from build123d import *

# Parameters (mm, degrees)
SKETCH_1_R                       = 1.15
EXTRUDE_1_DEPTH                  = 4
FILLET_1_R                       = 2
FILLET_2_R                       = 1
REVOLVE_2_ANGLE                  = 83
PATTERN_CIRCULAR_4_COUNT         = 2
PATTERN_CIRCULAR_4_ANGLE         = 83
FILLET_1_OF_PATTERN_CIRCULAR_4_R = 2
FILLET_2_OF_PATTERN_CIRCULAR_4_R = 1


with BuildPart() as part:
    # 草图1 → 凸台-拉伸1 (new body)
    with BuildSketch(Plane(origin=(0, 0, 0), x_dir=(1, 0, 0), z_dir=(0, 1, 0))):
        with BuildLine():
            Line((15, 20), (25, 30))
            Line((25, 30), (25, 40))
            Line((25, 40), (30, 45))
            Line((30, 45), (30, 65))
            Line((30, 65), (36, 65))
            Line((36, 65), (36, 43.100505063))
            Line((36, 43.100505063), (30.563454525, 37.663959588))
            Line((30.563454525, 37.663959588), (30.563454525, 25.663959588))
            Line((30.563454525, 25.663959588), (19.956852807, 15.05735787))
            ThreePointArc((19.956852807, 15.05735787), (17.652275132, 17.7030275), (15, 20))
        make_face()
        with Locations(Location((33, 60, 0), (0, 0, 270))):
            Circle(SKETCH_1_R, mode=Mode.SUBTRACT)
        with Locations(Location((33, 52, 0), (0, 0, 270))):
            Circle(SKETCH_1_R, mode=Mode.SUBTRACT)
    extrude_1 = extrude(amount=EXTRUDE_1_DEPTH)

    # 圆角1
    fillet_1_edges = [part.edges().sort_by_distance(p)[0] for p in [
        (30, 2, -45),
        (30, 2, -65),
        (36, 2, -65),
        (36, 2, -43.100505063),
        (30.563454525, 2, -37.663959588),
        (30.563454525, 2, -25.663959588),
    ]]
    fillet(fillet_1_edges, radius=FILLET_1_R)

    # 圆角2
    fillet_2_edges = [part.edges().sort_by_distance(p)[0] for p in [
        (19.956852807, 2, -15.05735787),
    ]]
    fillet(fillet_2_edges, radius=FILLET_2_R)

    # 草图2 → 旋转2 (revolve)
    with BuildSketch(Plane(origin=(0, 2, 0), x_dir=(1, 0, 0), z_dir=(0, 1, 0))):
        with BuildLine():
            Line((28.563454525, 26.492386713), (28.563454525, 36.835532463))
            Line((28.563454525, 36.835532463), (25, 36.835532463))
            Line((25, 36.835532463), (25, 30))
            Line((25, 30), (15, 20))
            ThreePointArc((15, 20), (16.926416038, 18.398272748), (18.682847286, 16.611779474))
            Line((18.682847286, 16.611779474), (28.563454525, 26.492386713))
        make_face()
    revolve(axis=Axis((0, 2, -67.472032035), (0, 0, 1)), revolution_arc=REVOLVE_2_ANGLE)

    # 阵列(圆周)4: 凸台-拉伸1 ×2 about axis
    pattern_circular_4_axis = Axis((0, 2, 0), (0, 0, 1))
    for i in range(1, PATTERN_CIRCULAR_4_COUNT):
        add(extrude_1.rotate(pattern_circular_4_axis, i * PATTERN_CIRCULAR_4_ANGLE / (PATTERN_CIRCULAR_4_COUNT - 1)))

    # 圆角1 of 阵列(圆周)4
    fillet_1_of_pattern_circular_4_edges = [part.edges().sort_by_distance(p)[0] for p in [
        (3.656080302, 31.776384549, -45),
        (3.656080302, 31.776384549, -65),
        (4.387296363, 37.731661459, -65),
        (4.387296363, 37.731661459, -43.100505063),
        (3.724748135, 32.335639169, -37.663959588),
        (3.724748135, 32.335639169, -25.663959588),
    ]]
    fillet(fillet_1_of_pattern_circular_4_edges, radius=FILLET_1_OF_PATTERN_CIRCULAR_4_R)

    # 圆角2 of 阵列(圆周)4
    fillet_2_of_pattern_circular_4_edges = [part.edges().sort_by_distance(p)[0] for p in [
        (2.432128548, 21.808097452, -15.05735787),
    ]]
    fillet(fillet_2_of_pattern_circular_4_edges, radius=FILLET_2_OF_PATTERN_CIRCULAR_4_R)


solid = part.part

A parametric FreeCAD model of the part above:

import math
import FreeCAD as App
import Part
import Sketcher

V = App.Vector
Q = App.Units.Quantity


def edges_at(feature, points):
    """Names of the edges that pass closest to the given points."""
    edges = feature.Shape.Edges
    near = lambda p: min(range(len(edges)), key=lambda i: edges[i].distToShape(Part.Vertex(*p))[0])
    return sorted({f"Edge{near(p) + 1}" for p in points})

doc = App.newDocument("Part")
body = doc.addObject("PartDesign::Body", "Body")

# Sketch on XZ plane
sketch1 = body.newObject("Sketcher::SketchObject", "Sketch")
sketch1.AttachmentSupport = (doc.getObject("XZ_Plane"), [""])
sketch1.MapMode = "FlatFace"
sketch1.addGeometry([
    Part.LineSegment(V(25, -30, 0), V(15, -20, 0)),  # 0
    Part.ArcOfCircle(Part.Circle(V(0, 0, 0), V(0, 0, 1), 25), math.radians(-53.13), math.radians(-37.03)),  # 1
    Part.LineSegment(V(20, -15.1, 0), V(30.6, -25.7, 0)),  # 2
    Part.LineSegment(V(30.6, -25.7, 0), V(30.6, -37.7, 0)),  # 3
    Part.LineSegment(V(30.6, -37.7, 0), V(36, -43.1, 0)),  # 4
    Part.LineSegment(V(36, -43.1, 0), V(36, -65, 0)),  # 5
    Part.LineSegment(V(36, -65, 0), V(30, -65, 0)),  # 6
    Part.LineSegment(V(30, -65, 0), V(30, -45, 0)),  # 7
    Part.LineSegment(V(30, -45, 0), V(25, -40, 0)),  # 8
    Part.LineSegment(V(25, -40, 0), V(25, -30, 0)),  # 9
    Part.Circle(V(33, -52, 0), V(0, 0, 1), 1.1),  # 10
    Part.Circle(V(33, -60, 0), V(0, 0, 1), 1.1),  # 11
], False)
sketch1.addConstraint([
    Sketcher.Constraint("Coincident", 0, 2, 1, 1),
    Sketcher.Constraint("Coincident", 1, 2, 2, 1),
    Sketcher.Constraint("Coincident", 2, 2, 3, 1),
    Sketcher.Constraint("Coincident", 3, 2, 4, 1),
    Sketcher.Constraint("Coincident", 4, 2, 5, 1),
    Sketcher.Constraint("Coincident", 5, 2, 6, 1),
    Sketcher.Constraint("Coincident", 6, 2, 7, 1),
    Sketcher.Constraint("Coincident", 7, 2, 8, 1),
    Sketcher.Constraint("Coincident", 8, 2, 9, 1),
    Sketcher.Constraint("Coincident", 9, 2, 0, 1),
    Sketcher.Constraint("Vertical", 3),
    Sketcher.Constraint("Vertical", 5),
    Sketcher.Constraint("Horizontal", 6),
    Sketcher.Constraint("Vertical", 7),
    Sketcher.Constraint("Vertical", 9),
    Sketcher.Constraint("Coincident", 1, 3, -1, 1),
    Sketcher.Constraint("Equal", 10, 11),
    Sketcher.Constraint("Parallel", 0, 2),
    Sketcher.Constraint("Parallel", 2, 4),
    Sketcher.Constraint("Parallel", 4, 8),
    Sketcher.Constraint("Vertical", 10, 3, 11, 3),
    Sketcher.Constraint("Radius", 1, 25.0),
    Sketcher.Constraint("Diameter", 10, 2.3),
    Sketcher.Constraint("DistanceX", 6, 2, 6, 1, 6.0),
    Sketcher.Constraint("DistanceY", 3, 2, 3, 1, 12.0),
    Sketcher.Constraint("DistanceY", 7, 1, 7, 2, 20.0),
    Sketcher.Constraint("DistanceY", 9, 1, 9, 2, 10.0),
    Sketcher.Constraint("Angle", 0, Q("135 deg")),
    Sketcher.Constraint("Distance", 2, 15.0),
    Sketcher.Constraint("DistanceX", -1, 1, 10, 3, 33.0),
    Sketcher.Constraint("DistanceY", 10, 3, -1, 1, 52.0),
    Sketcher.Constraint("DistanceY", 11, 3, -1, 1, 60.0),
    Sketcher.Constraint("DistanceX", -1, 1, 0, 2, 15.0),
    Sketcher.Constraint("DistanceX", -1, 1, 4, 2, 36.0),
    Sketcher.Constraint("DistanceX", -1, 1, 8, 2, 25.0),
    Sketcher.Constraint("DistanceY", 5, 2, 5, 1, 21.899495),
])
pad1 = body.newObject("PartDesign::Pad", "Pad")
pad1.Profile = sketch1
pad1.Length = 4
pad1.Reversed = True
doc.recompute()

fillet = body.newObject("PartDesign::Fillet", "Fillet")
fillet.Base = (pad1, edges_at(pad1, [
    (30, 2, -45),
    (30, 2, -65),
    (36, 2, -65),
    (36, 2, -43.101),
    (30.563, 2, -37.664),
    (30.563, 2, -25.664),
]))
fillet.Radius = 2
doc.recompute()

fillet2 = body.newObject("PartDesign::Fillet", "Fillet001")
fillet2.Base = (fillet, edges_at(fillet, [(19.957, 2, -15.057)]))
fillet2.Radius = 1

# Sketch on XZ plane
sketch2 = body.newObject("Sketcher::SketchObject", "Sketch001")
sketch2.AttachmentSupport = (doc.getObject("XZ_Plane"), [""])
sketch2.MapMode = "FlatFace"
sketch2.AttachmentOffset = App.Placement(V(0, 0, -2), App.Rotation())
sketch2.addGeometry([
    Part.LineSegment(V(28.6, -26.5, 0), V(28.6, -36.8, 0)),  # 0
    Part.LineSegment(V(28.6, -36.8, 0), V(25, -36.8, 0)),  # 1
    Part.LineSegment(V(25, -36.8, 0), V(25, -30, 0)),  # 2
    Part.LineSegment(V(25, -30, 0), V(15, -20, 0)),  # 3
    Part.ArcOfCircle(Part.Circle(V(0, 0, 0), V(0, 0, 1), 25), math.radians(-53.13), math.radians(-41.64)),  # 4
    Part.LineSegment(V(18.7, -16.6, 0), V(28.6, -26.5, 0)),  # 5
], False)
sketch2.addConstraint([
    Sketcher.Constraint("Coincident", 0, 2, 1, 1),
    Sketcher.Constraint("Coincident", 1, 2, 2, 1),
    Sketcher.Constraint("Coincident", 2, 2, 3, 1),
    Sketcher.Constraint("Coincident", 3, 2, 4, 1),
    Sketcher.Constraint("Coincident", 4, 2, 5, 1),
    Sketcher.Constraint("Coincident", 5, 2, 0, 1),
    Sketcher.Constraint("Vertical", 0),
    Sketcher.Constraint("Horizontal", 1),
    Sketcher.Constraint("Vertical", 2),
    Sketcher.Constraint("Coincident", 4, 3, -1, 1),
    Sketcher.Constraint("Parallel", 3, 5),
    Sketcher.Constraint("Radius", 4, 25.0),
    Sketcher.Constraint("Angle", 3, Q("135 deg")),
    Sketcher.Constraint("DistanceX", -1, 1, 1, 2, 25.0),
    Sketcher.Constraint("DistanceY", 2, 2, -1, 1, 30.0),
    Sketcher.Constraint("Distance", 5, 13.973289),
    Sketcher.Constraint("DistanceX", 1, 2, 1, 1, 3.563455),
    Sketcher.Constraint("DistanceY", 0, 2, 0, 1, 10.343146),
])
revolution = body.newObject("PartDesign::Revolution", "Revolution")
revolution.Profile = sketch2
revolution.ReferenceAxis = (sketch2, ["V_Axis"])
revolution.Angle = 83
doc.recompute()

datumline = body.newObject("PartDesign::Line", "DatumLine")
datumline.Placement = App.Placement(V(0, 2, 0), App.Rotation(V(0, 0, 1), V(0, 0, 1)))
polarpattern = body.newObject("PartDesign::PolarPattern", "PolarPattern")
polarpattern.Originals = [pad1]
polarpattern.Axis = (datumline, [""])
polarpattern.Angle = 83
polarpattern.Occurrences = 2
body.Tip = polarpattern
doc.recompute()

fillet3 = body.newObject("PartDesign::Fillet", "Fillet002")
fillet3.Base = (polarpattern, edges_at(polarpattern, [
    (3.656, 31.776, -45),
    (3.656, 31.776, -65),
    (4.387, 37.732, -65),
    (4.387, 37.732, -43.101),
    (3.725, 32.336, -37.664),
    (3.725, 32.336, -25.664),
]))
fillet3.Radius = 2
doc.recompute()

fillet4 = body.newObject("PartDesign::Fillet", "Fillet003")
fillet4.Base = (fillet3, edges_at(fillet3, [(2.432, 21.808, -15.057)]))
fillet4.Radius = 1

doc.recompute()
